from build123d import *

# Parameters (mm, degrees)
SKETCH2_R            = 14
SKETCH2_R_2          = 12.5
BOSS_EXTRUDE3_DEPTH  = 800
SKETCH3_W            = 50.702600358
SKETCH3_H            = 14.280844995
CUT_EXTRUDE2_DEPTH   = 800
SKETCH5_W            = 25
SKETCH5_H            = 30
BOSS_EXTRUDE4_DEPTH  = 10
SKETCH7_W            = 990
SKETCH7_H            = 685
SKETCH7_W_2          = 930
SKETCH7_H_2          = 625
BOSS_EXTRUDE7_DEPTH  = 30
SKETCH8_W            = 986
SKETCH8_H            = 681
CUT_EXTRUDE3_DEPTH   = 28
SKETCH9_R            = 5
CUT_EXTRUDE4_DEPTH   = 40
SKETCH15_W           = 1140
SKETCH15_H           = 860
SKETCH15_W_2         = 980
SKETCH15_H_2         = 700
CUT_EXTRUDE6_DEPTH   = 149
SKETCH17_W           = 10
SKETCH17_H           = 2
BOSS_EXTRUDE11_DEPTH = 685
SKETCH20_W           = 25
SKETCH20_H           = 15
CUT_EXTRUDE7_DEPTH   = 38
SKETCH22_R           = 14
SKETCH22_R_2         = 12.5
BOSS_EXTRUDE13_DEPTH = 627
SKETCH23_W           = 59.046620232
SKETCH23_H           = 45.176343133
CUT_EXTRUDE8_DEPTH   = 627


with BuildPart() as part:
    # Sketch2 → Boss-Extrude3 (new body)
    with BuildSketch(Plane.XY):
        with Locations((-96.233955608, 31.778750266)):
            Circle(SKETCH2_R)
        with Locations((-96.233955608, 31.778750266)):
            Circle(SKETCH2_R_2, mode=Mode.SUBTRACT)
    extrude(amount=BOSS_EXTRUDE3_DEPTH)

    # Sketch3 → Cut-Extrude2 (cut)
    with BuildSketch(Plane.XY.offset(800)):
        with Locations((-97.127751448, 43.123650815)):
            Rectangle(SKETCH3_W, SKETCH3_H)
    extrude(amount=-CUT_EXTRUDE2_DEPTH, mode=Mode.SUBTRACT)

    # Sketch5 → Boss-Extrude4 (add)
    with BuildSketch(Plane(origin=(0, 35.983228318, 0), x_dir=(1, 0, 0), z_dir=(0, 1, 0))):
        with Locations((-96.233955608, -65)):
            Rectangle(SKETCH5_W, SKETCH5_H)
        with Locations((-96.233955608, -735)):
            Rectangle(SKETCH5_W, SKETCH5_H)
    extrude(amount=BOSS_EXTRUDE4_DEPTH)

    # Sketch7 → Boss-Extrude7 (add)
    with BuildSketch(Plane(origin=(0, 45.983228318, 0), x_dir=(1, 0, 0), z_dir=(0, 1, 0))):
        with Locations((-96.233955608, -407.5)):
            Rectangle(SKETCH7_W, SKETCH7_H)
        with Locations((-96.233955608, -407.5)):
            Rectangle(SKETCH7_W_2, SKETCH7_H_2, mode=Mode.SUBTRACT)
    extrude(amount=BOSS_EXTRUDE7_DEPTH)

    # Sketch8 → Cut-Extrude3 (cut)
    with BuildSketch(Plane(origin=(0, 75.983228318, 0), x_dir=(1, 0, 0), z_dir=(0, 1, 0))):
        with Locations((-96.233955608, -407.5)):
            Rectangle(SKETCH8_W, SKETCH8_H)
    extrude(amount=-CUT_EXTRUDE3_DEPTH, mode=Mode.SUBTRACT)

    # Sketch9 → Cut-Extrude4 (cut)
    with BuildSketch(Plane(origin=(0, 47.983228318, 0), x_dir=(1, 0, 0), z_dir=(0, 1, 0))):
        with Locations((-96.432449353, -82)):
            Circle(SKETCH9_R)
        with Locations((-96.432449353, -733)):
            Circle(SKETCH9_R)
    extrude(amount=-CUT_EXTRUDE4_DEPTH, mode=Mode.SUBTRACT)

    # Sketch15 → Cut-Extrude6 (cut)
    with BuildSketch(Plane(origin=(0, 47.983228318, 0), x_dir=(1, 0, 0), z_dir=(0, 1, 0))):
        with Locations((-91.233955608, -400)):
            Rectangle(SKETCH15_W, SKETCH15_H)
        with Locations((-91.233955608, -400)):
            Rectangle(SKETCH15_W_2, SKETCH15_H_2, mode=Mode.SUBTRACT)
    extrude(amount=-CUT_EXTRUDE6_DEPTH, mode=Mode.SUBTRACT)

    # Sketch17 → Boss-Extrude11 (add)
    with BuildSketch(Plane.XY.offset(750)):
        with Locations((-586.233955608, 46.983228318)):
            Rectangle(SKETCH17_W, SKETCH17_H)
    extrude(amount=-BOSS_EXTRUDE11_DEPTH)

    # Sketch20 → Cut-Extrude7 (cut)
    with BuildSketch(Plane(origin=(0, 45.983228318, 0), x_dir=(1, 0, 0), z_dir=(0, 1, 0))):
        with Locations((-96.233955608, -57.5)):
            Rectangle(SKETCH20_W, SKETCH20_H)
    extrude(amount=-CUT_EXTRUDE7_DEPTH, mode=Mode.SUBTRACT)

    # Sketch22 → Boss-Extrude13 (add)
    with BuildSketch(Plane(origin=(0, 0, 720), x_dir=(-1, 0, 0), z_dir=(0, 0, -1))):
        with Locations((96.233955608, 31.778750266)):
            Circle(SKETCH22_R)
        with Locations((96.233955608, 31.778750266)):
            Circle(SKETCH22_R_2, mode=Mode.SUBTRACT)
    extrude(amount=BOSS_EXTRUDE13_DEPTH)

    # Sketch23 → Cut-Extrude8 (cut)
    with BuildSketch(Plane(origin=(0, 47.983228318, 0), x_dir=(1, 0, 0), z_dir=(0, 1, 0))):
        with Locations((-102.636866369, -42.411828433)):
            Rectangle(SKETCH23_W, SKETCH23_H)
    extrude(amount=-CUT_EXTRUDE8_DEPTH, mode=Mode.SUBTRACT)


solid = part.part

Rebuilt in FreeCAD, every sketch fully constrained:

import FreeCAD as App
import Part
import Sketcher


def add_polygon(sketch, points):
    """Adds a closed chain of lines whose ends are joined by coincident constraints."""
    first, n = sketch.GeometryCount, len(points)
    for a, b in zip(points, points[1:] + points[:1]):
        sketch.addGeometry(Part.LineSegment(App.Vector(*a, 0), App.Vector(*b, 0)), False)
    for i in range(n):
        sketch.addConstraint(Sketcher.Constraint("Coincident", first + i, 2, first + (i + 1) % n, 1))

doc = App.newDocument("Part")
body = doc.addObject("PartDesign::Body", "Body")

sketch1 = body.newObject("Sketcher::SketchObject", "Sketch")
sketch1.AttachmentSupport = (doc.getObject("XY_Plane"), [""])
sketch1.MapMode = "FlatFace"
sketch1.addGeometry(Part.Circle(App.Vector(-96, 32, 0), App.Vector(0, 0, 1), 14), False)
sketch1.addGeometry(Part.Circle(App.Vector(-96, 32, 0), App.Vector(0, 0, 1), 12), False)
sketch1.addConstraint(Sketcher.Constraint("Coincident", 1, 3, 0, 3))
sketch1.addConstraint(Sketcher.Constraint("Diameter", 0, 28.0))
sketch1.addConstraint(Sketcher.Constraint("Diameter", 1, 25.0))
sketch1.addConstraint(Sketcher.Constraint("DistanceY", -1, 1, 0, 3, 31.77875))
sketch1.addConstraint(Sketcher.Constraint("DistanceX", 0, 3, -1, 1, 96.233956))
pad1 = body.newObject("PartDesign::Pad", "Pad")
pad1.Profile = sketch1
pad1.Length = 800

sketch2 = body.newObject("Sketcher::SketchObject", "Sketch001")
sketch2.AttachmentSupport = (doc.getObject("XY_Plane"), [""])
sketch2.MapMode = "FlatFace"
sketch2.AttachmentOffset = App.Placement(App.Vector(0, 0, 800), App.Rotation())
add_polygon(sketch2, [(-122, 50), (-122, 36), (-72, 36), (-72, 50)])
sketch2.addConstraint(Sketcher.Constraint("Vertical", 0))
sketch2.addConstraint(Sketcher.Constraint("Horizontal", 1))
sketch2.addConstraint(Sketcher.Constraint("Vertical", 2))
sketch2.addConstraint(Sketcher.Constraint("Horizontal", 3))
sketch2.addConstraint(Sketcher.Constraint("DistanceX", 1, 1, 1, 2, 50.7026))
sketch2.addConstraint(Sketcher.Constraint("DistanceY", 0, 2, 0, 1, 14.280845))
sketch2.addConstraint(Sketcher.Constraint("DistanceX", 0, 2, -1, 1, 122.479052))
sketch2.addConstraint(Sketcher.Constraint("DistanceY", -1, 1, 0, 2, 35.983228))
pocket1 = body.newObject("PartDesign::Pocket", "Pocket")
pocket1.Profile = sketch2
pocket1.Length = 800

sketch3 = body.newObject("Sketcher::SketchObject", "Sketch002")
sketch3.AttachmentSupport = (doc.getObject("XZ_Plane"), [""])
sketch3.MapMode = "FlatFace"
sketch3.AttachmentOffset = App.Placement(App.Vector(0, 0, -35.983228), App.Rotation())
add_polygon(sketch3, [(-109, 50), (-109, 80), (-84, 80), (-84, 50)])
add_polygon(sketch3, [(-109, 720), (-109, 750), (-84, 750), (-84, 720)])
sketch3.addConstraint(Sketcher.Constraint("Vertical", 0))
sketch3.addConstraint(Sketcher.Constraint("Horizontal", 1))
sketch3.addConstraint(Sketcher.Constraint("Vertical", 2))
sketch3.addConstraint(Sketcher.Constraint("Horizontal", 3))
sketch3.addConstraint(Sketcher.Constraint("Vertical", 4))
sketch3.addConstraint(Sketcher.Constraint("Horizontal", 5))
sketch3.addConstraint(Sketcher.Constraint("Vertical", 6))
sketch3.addConstraint(Sketcher.Constraint("Horizontal", 7))
sketch3.addConstraint(Sketcher.Constraint("Vertical", 3, 2, 4, 2))
sketch3.addConstraint(Sketcher.Constraint("Vertical", 2, 2, 5, 2))
sketch3.addConstraint(Sketcher.Constraint("Equal", 2, 4))
sketch3.addConstraint(Sketcher.Constraint("DistanceX", 1, 1, 1, 2, 25.0))
sketch3.addConstraint(Sketcher.Constraint("DistanceY", 0, 1, 0, 2, 30.0))
sketch3.addConstraint(Sketcher.Constraint("DistanceY", -1, 1, 0, 2, 80.0))
sketch3.addConstraint(Sketcher.Constraint("DistanceY", -1, 1, 4, 2, 750.0))
sketch3.addConstraint(Sketcher.Constraint("DistanceX", 0, 2, -1, 1, 108.733956))
pad2 = body.newObject("PartDesign::Pad", "Pad001")
pad2.Profile = sketch3
pad2.Length = 10
pad2.Reversed = True

sketch4 = body.newObject("Sketcher::SketchObject", "Sketch003")
sketch4.AttachmentSupport = (doc.getObject("XZ_Plane"), [""])
sketch4.MapMode = "FlatFace"
sketch4.AttachmentOffset = App.Placement(App.Vector(0, 0, -45.983228), App.Rotation())
add_polygon(sketch4, [(-591, 65), (-591, 750), (399, 750), (399, 65)])
add_polygon(sketch4, [(369, 720), (-561, 720), (-561, 95), (369, 95)])
sketch4.addConstraint(Sketcher.Constraint("Vertical", 0))
sketch4.addConstraint(Sketcher.Constraint("Horizontal", 1))
sketch4.addConstraint(Sketcher.Constraint("Vertical", 2))
sketch4.addConstraint(Sketcher.Constraint("Horizontal", 3))
sketch4.addConstraint(Sketcher.Constraint("Horizontal", 4))
sketch4.addConstraint(Sketcher.Constraint("Vertical", 5))
sketch4.addConstraint(Sketcher.Constraint("Horizontal", 6))
sketch4.addConstraint(Sketcher.Constraint("Vertical", 7))
sketch4.addConstraint(Sketcher.Constraint("DistanceX", 1, 1, 1, 2, 990.0))
sketch4.addConstraint(Sketcher.Constraint("DistanceX", 4, 2, 4, 1, 930.0))
sketch4.addConstraint(Sketcher.Constraint("DistanceY", 0, 1, 0, 2, 685.0))
sketch4.addConstraint(Sketcher.Constraint("DistanceY", 5, 2, 5, 1, 625.0))
sketch4.addConstraint(Sketcher.Constraint("DistanceY", -1, 1, 0, 2, 750.0))
sketch4.addConstraint(Sketcher.Constraint("DistanceY", -1, 1, 4, 2, 720.0))
sketch4.addConstraint(Sketcher.Constraint("DistanceX", 0, 2, 4, 2, 30.0))
sketch4.addConstraint(Sketcher.Constraint("DistanceX", 0, 2, -1, 1, 591.233956))
pad3 = body.newObject("PartDesign::Pad", "Pad002")
pad3.Profile = sketch4
pad3.Length = 30
pad3.Reversed = True

sketch5 = body.newObject("Sketcher::SketchObject", "Sketch004")
sketch5.AttachmentSupport = (doc.getObject("XZ_Plane"), [""])
sketch5.MapMode = "FlatFace"
sketch5.AttachmentOffset = App.Placement(App.Vector(0, 0, -75.983228), App.Rotation())
add_polygon(sketch5, [(-589, 67), (-589, 748), (397, 748), (397, 67)])
sketch5.addConstraint(Sketcher.Constraint("Vertical", 0))
sketch5.addConstraint(Sketcher.Constraint("Horizontal", 1))
sketch5.addConstraint(Sketcher.Constraint("Vertical", 2))
sketch5.addConstraint(Sketcher.Constraint("Horizontal", 3))
sketch5.addConstraint(Sketcher.Constraint("DistanceX", 1, 1, 1, 2, 986.0))
sketch5.addConstraint(Sketcher.Constraint("DistanceY", 0, 1, 0, 2, 681.0))
sketch5.addConstraint(Sketcher.Constraint("DistanceY", -1, 1, 0, 2, 748.0))
sketch5.addConstraint(Sketcher.Constraint("DistanceX", 0, 2, -1, 1, 589.233956))
pocket2 = body.newObject("PartDesign::Pocket", "Pocket001")
pocket2.Profile = sketch5
pocket2.Length = 28
pocket2.Reversed = True

sketch6 = body.newObject("Sketcher::SketchObject", "Sketch005")
sketch6.AttachmentSupport = (doc.getObject("XZ_Plane"), [""])
sketch6.MapMode = "FlatFace"
sketch6.AttachmentOffset = App.Placement(App.Vector(0, 0, -47.983228), App.Rotation())
sketch6.addGeometry(Part.Circle(App.Vector(-96, 82, 0), App.Vector(0, 0, 1), 5), False)
sketch6.addGeometry(Part.Circle(App.Vector(-96, 733, 0), App.Vector(0, 0, 1), 5), False)
sketch6.addConstraint(Sketcher.Constraint("Equal", 0, 1))
sketch6.addConstraint(Sketcher.Constraint("Vertical", 0, 3, 1, 3))
sketch6.addConstraint(Sketcher.Constraint("Diameter", 0, 10.0))
sketch6.addConstraint(Sketcher.Constraint("DistanceY", -1, 1, 0, 3, 82.0))
sketch6.addConstraint(Sketcher.Constraint("DistanceY", -1, 1, 1, 3, 733.0))
sketch6.addConstraint(Sketcher.Constraint("DistanceX", 0, 3, -1, 1, 96.432449))
pocket3 = body.newObject("PartDesign::Pocket", "Pocket002")
pocket3.Profile = sketch6
pocket3.Length = 40
pocket3.Reversed = True

sketch7 = body.newObject("Sketcher::SketchObject", "Sketch006")
sketch7.AttachmentSupport = (doc.getObject("XZ_Plane"), [""])
sketch7.MapMode = "FlatFace"
sketch7.AttachmentOffset = App.Placement(App.Vector(0, 0, -47.983228), App.Rotation())
add_polygon(sketch7, [(-661, -30), (-661, 830), (479, 830), (479, -30)])
add_polygon(sketch7, [(399, 750), (-581, 750), (-581, 50), (399, 50)])
sketch7.addConstraint(Sketcher.Constraint("Vertical", 0))
sketch7.addConstraint(Sketcher.Constraint("Horizontal", 1))
sketch7.addConstraint(Sketcher.Constraint("Vertical", 2))
sketch7.addConstraint(Sketcher.Constraint("Horizontal", 3))
sketch7.addConstraint(Sketcher.Constraint("Horizontal", 4))
sketch7.addConstraint(Sketcher.Constraint("Vertical", 5))
sketch7.addConstraint(Sketcher.Constraint("Horizontal", 6))
sketch7.addConstraint(Sketcher.Constraint("Vertical", 7))
sketch7.addConstraint(Sketcher.Constraint("DistanceX", 1, 1, 1, 2, 1140.0))
sketch7.addConstraint(Sketcher.Constraint("DistanceX", 4, 2, 4, 1, 980.0))
sketch7.addConstraint(Sketcher.Constraint("DistanceY", 0, 1, 0, 2, 860.0))
sketch7.addConstraint(Sketcher.Constraint("DistanceY", 5, 2, 5, 1, 700.0))
sketch7.addConstraint(Sketcher.Constraint("DistanceY", -1, 1, 0, 2, 830.0))
sketch7.addConstraint(Sketcher.Constraint("DistanceY", -1, 1, 4, 2, 750.0))
sketch7.addConstraint(Sketcher.Constraint("DistanceX", 0, 2, 4, 2, 80.0))
sketch7.addConstraint(Sketcher.Constraint("DistanceX", 0, 2, -1, 1, 661.233956))
pocket4 = body.newObject("PartDesign::Pocket", "Pocket003")
pocket4.Profile = sketch7
pocket4.Length = 149
pocket4.Reversed = True

sketch8 = body.newObject("Sketcher::SketchObject", "Sketch007")
sketch8.AttachmentSupport = (doc.getObject("XY_Plane"), [""])
sketch8.MapMode = "FlatFace"
sketch8.AttachmentOffset = App.Placement(App.Vector(0, 0, 750), App.Rotation())
add_polygon(sketch8, [(-591.2, 48), (-591.2, 46), (-581.2, 46), (-581.2, 48)])
sketch8.addConstraint(Sketcher.Constraint("Vertical", 0))
sketch8.addConstraint(Sketcher.Constraint("Horizontal", 1))
sketch8.addConstraint(Sketcher.Constraint("Vertical", 2))
sketch8.addConstraint(Sketcher.Constraint("Horizontal", 3))
sketch8.addConstraint(Sketcher.Constraint("DistanceX", 1, 1, 1, 2, 10.0))
sketch8.addConstraint(Sketcher.Constraint("DistanceY", 0, 2, 0, 1, 2.0))
sketch8.addConstraint(Sketcher.Constraint("DistanceY", -1, 1, 0, 2, 45.983228))
sketch8.addConstraint(Sketcher.Constraint("DistanceX", 0, 2, -1, 1, 591.233956))
pad4 = body.newObject("PartDesign::Pad", "Pad003")
pad4.Profile = sketch8
pad4.Length = 685
pad4.Reversed = True

sketch9 = body.newObject("Sketcher::SketchObject", "Sketch008")
sketch9.AttachmentSupport = (doc.getObject("XZ_Plane"), [""])
sketch9.MapMode = "FlatFace"
sketch9.AttachmentOffset = App.Placement(App.Vector(0, 0, -45.983228), App.Rotation())
add_polygon(sketch9, [(-109, 50), (-109, 65), (-84, 65), (-84, 50)])
sketch9.addConstraint(Sketcher.Constraint("Vertical", 0))
sketch9.addConstraint(Sketcher.Constraint("Horizontal", 1))
sketch9.addConstraint(Sketcher.Constraint("Vertical", 2))
sketch9.addConstraint(Sketcher.Constraint("Horizontal", 3))
sketch9.addConstraint(Sketcher.Constraint("DistanceX", 1, 1, 1, 2, 25.0))
sketch9.addConstraint(Sketcher.Constraint("DistanceY", 0, 1, 0, 2, 15.0))
sketch9.addConstraint(Sketcher.Constraint("DistanceY", -1, 1, 0, 2, 65.0))
sketch9.addConstraint(Sketcher.Constraint("DistanceX", 0, 2, -1, 1, 108.733956))
pocket5 = body.newObject("PartDesign::Pocket", "Pocket004")
pocket5.Profile = sketch9
pocket5.Length = 38
pocket5.Reversed = True

sketch10 = body.newObject("Sketcher::SketchObject", "Sketch009")
sketch10.AttachmentSupport = (doc.getObject("XY_Plane"), [""])
sketch10.MapMode = "FlatFace"
sketch10.AttachmentOffset = App.Placement(App.Vector(0, 0, 720), App.Rotation())
sketch10.addGeometry(Part.Circle(App.Vector(-96, 32, 0), App.Vector(0, 0, 1), 14), False)
sketch10.addGeometry(Part.Circle(App.Vector(-96, 32, 0), App.Vector(0, 0, 1), 12), False)
sketch10.addConstraint(Sketcher.Constraint("Coincident", 1, 3, 0, 3))
sketch10.addConstraint(Sketcher.Constraint("Diameter", 0, 28.0))
sketch10.addConstraint(Sketcher.Constraint("Diameter", 1, 25.0))
sketch10.addConstraint(Sketcher.Constraint("DistanceY", -1, 1, 0, 3, 31.77875))
sketch10.addConstraint(Sketcher.Constraint("DistanceX", 0, 3, -1, 1, 96.233956))
pad5 = body.newObject("PartDesign::Pad", "Pad004")
pad5.Profile = sketch10
pad5.Length = 627
pad5.Reversed = True

sketch11 = body.newObject("Sketcher::SketchObject", "Sketch010")
sketch11.AttachmentSupport = (doc.getObject("XZ_Plane"), [""])
sketch11.MapMode = "FlatFace"
sketch11.AttachmentOffset = App.Placement(App.Vector(0, 0, -47.983228), App.Rotation())
add_polygon(sketch11, [(-132, 20), (-132, 65), (-73, 65), (-73, 20)])
sketch11.addConstraint(Sketcher.Constraint("Vertical", 0))
sketch11.addConstraint(Sketcher.Constraint("Horizontal", 1))
sketch11.addConstraint(Sketcher.Constraint("Vertical", 2))
sketch11.addConstraint(Sketcher.Constraint("Horizontal", 3))
sketch11.addConstraint(Sketcher.Constraint("DistanceY", -1, 1, 0, 2, 65.0))
sketch11.addConstraint(Sketcher.Constraint("DistanceX", 1, 1, 1, 2, 59.04662))
sketch11.addConstraint(Sketcher.Constraint("DistanceY", 0, 1, 0, 2, 45.176343))
sketch11.addConstraint(Sketcher.Constraint("DistanceX", 0, 2, -1, 1, 132.160176))
pocket6 = body.newObject("PartDesign::Pocket", "Pocket005")
pocket6.Profile = sketch11
pocket6.Length = 627
pocket6.Reversed = True

doc.recompute()
